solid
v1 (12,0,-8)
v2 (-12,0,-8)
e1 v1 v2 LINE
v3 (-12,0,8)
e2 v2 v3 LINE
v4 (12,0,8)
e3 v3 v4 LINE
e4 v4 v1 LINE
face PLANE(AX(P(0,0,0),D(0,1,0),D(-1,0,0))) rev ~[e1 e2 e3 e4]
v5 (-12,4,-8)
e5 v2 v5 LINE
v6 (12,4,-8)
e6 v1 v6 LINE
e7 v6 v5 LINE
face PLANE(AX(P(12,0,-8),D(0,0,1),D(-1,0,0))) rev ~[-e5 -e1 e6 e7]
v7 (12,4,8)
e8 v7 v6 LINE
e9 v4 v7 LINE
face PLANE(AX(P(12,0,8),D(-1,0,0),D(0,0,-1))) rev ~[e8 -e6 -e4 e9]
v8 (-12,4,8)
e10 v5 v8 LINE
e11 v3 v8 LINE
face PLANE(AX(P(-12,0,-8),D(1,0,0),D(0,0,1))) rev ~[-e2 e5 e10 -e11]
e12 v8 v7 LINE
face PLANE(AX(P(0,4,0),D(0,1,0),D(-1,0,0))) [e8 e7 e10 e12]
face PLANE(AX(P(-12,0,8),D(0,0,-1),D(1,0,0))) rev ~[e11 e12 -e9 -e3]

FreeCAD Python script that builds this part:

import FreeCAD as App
import Part
import Sketcher
from FreeCAD import Vector


def add_polygon(sketch, points):
    """Adds a closed chain of lines whose ends are joined by coincident constraints."""
    first, n = sketch.GeometryCount, len(points)
    for a, b in zip(points, points[1:] + points[:1]):
        sketch.addGeometry(Part.LineSegment(App.Vector(*a, 0), App.Vector(*b, 0)), False)
    for i in range(n):
        sketch.addConstraint(Sketcher.Constraint("Coincident", first + i, 2, first + (i + 1) % n, 1))

doc = App.newDocument("Part")
body = doc.addObject("PartDesign::Body", "Body")

# Sketch on XZ plane
sketch1 = body.newObject("Sketcher::SketchObject", "Sketch")
sketch1.AttachmentSupport = (doc.getObject("XZ_Plane"), [""])
sketch1.MapMode = "FlatFace"
add_polygon(sketch1, [(12, 8), (12, -8), (-12, -8), (-12, 8)])  # lines 0-3
sketch1.addConstraint([
    Sketcher.Constraint("Vertical", 0),
    Sketcher.Constraint("Horizontal", 1),
    Sketcher.Constraint("Vertical", 2),
    Sketcher.Constraint("Horizontal", 3),
    Sketcher.Constraint("Symmetric", 0, 2, 2, 2, -1, 1),
    Sketcher.Constraint("DistanceX", 1, 2, 1, 1, 24.0),
    Sketcher.Constraint("DistanceY", 0, 2, 0, 1, 16.0),
])
pad1 = body.newObject("PartDesign::Pad", "Pad")
pad1.Profile = sketch1
pad1.Length = 4
pad1.Reversed = True

doc.recompute()
